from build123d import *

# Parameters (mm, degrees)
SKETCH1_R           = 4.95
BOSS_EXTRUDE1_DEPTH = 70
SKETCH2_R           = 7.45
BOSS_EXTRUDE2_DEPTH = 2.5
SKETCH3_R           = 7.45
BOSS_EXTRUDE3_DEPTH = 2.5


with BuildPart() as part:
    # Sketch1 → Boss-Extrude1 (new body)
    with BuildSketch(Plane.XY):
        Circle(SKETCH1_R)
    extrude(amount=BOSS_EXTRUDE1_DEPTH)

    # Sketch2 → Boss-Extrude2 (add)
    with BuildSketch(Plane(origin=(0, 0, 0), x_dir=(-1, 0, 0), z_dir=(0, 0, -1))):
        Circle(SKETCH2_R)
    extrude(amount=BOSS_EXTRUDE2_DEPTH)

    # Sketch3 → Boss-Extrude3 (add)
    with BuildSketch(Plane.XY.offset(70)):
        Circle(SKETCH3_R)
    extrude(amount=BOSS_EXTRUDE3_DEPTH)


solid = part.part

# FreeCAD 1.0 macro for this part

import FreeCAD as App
import Part
import Sketcher
Q = App.Units.Quantity

doc = App.newDocument("Part")
body = doc.addObject("PartDesign::Body", "Body")

# Sketch on XY plane
sketch1 = body.newObject("Sketcher::SketchObject", "Sketch")
sketch1.AttachmentSupport = (doc.getObject("XY_Plane"), [""])
sketch1.MapMode = "FlatFace"
sketch1.addGeometry(Part.Circle(App.Vector(0, 0, 0), App.Vector(0, 0, 1), 5), False)
sketch1.addConstraint(Sketcher.Constraint("Coincident", 0, 3, -1, 1))
sketch1.addConstraint(Sketcher.Constraint("Diameter", 0, Q("9.9 mm")))
pad1 = body.newObject("PartDesign::Pad", "Pad")
pad1.Profile = sketch1
pad1.Length = 70

# Sketch on XY plane
sketch2 = body.newObject("Sketcher::SketchObject", "Sketch001")
sketch2.AttachmentSupport = (doc.getObject("XY_Plane"), [""])
sketch2.MapMode = "FlatFace"
sketch2.addGeometry(Part.Circle(App.Vector(0, 0, 0), App.Vector(0, 0, 1), 7), False)
sketch2.addConstraint(Sketcher.Constraint("Coincident", 0, 3, -1, 1))
sketch2.addConstraint(Sketcher.Constraint("Diameter", 0, Q("14.9 mm")))
pad2 = body.newObject("PartDesign::Pad", "Pad001")
pad2.Profile = sketch2
pad2.Length = 2.5
pad2.Reversed = True

# Sketch on XY plane
sketch3 = body.newObject("Sketcher::SketchObject", "Sketch002")
sketch3.AttachmentSupport = (doc.getObject("XY_Plane"), [""])
sketch3.MapMode = "FlatFace"
sketch3.AttachmentOffset = App.Placement(App.Vector(0, 0, 70), App.Rotation())
sketch3.addGeometry(Part.Circle(App.Vector(0, 0, 0), App.Vector(0, 0, 1), 7), False)
sketch3.addConstraint(Sketcher.Constraint("Coincident", 0, 3, -1, 1))
sketch3.addConstraint(Sketcher.Constraint("Diameter", 0, Q("14.9 mm")))
pad3 = body.newObject("PartDesign::Pad", "Pad002")
pad3.Profile = sketch3
pad3.Length = 2.5

doc.recompute()
